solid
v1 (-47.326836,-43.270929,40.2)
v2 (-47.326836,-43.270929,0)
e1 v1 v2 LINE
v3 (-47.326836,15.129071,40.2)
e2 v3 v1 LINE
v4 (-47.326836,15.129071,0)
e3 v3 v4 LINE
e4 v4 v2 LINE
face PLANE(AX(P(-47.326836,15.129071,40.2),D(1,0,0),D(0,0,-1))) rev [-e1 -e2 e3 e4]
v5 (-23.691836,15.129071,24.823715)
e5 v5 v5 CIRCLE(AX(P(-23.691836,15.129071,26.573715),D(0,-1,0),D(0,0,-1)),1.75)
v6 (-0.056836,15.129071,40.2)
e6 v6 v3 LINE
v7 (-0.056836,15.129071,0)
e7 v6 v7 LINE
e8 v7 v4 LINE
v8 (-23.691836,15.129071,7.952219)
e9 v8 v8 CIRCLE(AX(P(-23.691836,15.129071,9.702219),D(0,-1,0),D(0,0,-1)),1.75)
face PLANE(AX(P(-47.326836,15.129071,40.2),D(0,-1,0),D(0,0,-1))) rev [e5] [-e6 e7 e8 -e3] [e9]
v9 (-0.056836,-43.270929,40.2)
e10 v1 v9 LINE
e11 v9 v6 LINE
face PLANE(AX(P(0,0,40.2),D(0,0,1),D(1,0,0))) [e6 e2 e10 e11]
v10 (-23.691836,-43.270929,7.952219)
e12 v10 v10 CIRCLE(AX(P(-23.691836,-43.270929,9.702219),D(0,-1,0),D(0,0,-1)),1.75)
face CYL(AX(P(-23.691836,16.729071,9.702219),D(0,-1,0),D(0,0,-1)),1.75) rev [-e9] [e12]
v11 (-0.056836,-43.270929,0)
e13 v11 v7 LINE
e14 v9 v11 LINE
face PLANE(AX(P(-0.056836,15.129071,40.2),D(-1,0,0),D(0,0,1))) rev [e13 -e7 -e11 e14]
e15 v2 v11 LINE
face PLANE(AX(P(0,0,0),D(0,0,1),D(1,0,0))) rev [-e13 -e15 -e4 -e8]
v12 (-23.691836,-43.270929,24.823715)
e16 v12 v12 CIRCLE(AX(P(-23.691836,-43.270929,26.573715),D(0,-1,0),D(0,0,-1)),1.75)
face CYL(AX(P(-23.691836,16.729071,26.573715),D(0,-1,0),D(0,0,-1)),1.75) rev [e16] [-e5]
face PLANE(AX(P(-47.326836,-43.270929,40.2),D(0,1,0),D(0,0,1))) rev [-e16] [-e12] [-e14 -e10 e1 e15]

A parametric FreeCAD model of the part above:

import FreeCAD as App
import Part
import Sketcher
from FreeCAD import Vector


def add_polygon(sketch, points):
    """Adds a closed chain of lines whose ends are joined by coincident constraints."""
    first, n = sketch.GeometryCount, len(points)
    for a, b in zip(points, points[1:] + points[:1]):
        sketch.addGeometry(Part.LineSegment(App.Vector(*a, 0), App.Vector(*b, 0)), False)
    for i in range(n):
        sketch.addConstraint(Sketcher.Constraint("Coincident", first + i, 2, first + (i + 1) % n, 1))

doc = App.newDocument("Part")
body = doc.addObject("PartDesign::Body", "Body")

# Sketch on XY plane
sketch1 = doc.addObject("Sketcher::SketchObject", "Sketch")
body.addObject(sketch1)
sketch1.AttachmentSupport = (doc.XY_Plane, [""])
sketch1.MapMode = "FlatFace"
add_polygon(sketch1, [(-47, 15), (-47, -43), (0, -43), (0, 15)])  # lines 0-3
sketch1.addConstraint(Sketcher.Constraint("Vertical", 0))
sketch1.addConstraint(Sketcher.Constraint("Horizontal", 1))
sketch1.addConstraint(Sketcher.Constraint("Vertical", 2))
sketch1.addConstraint(Sketcher.Constraint("Horizontal", 3))
sketch1.addConstraint(Sketcher.Constraint("DistanceY", 0, 2, 0, 1, 58.4))
sketch1.addConstraint(Sketcher.Constraint("DistanceX", 1, 1, 1, 2, 47.27))
sketch1.addConstraint(Sketcher.Constraint("DistanceY", 0, 2, -1, 1, 43.270929))
sketch1.addConstraint(Sketcher.Constraint("DistanceX", 0, 2, -1, 1, 47.326836))
pad1 = doc.addObject("PartDesign::Pad", "Pad")
body.addObject(pad1)
pad1.Profile = sketch1
pad1.Length = 40.2

# Sketch on XZ plane
sketch2 = doc.addObject("Sketcher::SketchObject", "Sketch001")
body.addObject(sketch2)
sketch2.AttachmentSupport = (doc.XZ_Plane, [""])
sketch2.MapMode = "FlatFace"
sketch2.AttachmentOffset = App.Placement(Vector(0, 0, 43.270929), App.Rotation())
sketch2.addGeometry(Part.Circle(Vector(-23.7, 9.7, 0), Vector(0, 0, 1), 1.8), False)
sketch2.addGeometry(Part.Circle(Vector(-23.7, 26.6, 0), Vector(0, 0, 1), 1.8), False)
sketch2.addConstraint(Sketcher.Constraint("Equal", 0, 1))
sketch2.addConstraint(Sketcher.Constraint("Vertical", 0, 3, 1, 3))
sketch2.addConstraint(Sketcher.Constraint("Diameter", 0, 3.5))
sketch2.addConstraint(Sketcher.Constraint("DistanceY", -1, 1, 0, 3, 9.702219))
sketch2.addConstraint(Sketcher.Constraint("DistanceX", 0, 3, -1, 1, 23.691836))
sketch2.addConstraint(Sketcher.Constraint("DistanceY", -1, 1, 1, 3, 26.573715))
pocket1 = doc.addObject("PartDesign::Pocket", "Pocket")
body.addObject(pocket1)
pocket1.Profile = sketch2
pocket1.Length = 60

doc.recompute()
